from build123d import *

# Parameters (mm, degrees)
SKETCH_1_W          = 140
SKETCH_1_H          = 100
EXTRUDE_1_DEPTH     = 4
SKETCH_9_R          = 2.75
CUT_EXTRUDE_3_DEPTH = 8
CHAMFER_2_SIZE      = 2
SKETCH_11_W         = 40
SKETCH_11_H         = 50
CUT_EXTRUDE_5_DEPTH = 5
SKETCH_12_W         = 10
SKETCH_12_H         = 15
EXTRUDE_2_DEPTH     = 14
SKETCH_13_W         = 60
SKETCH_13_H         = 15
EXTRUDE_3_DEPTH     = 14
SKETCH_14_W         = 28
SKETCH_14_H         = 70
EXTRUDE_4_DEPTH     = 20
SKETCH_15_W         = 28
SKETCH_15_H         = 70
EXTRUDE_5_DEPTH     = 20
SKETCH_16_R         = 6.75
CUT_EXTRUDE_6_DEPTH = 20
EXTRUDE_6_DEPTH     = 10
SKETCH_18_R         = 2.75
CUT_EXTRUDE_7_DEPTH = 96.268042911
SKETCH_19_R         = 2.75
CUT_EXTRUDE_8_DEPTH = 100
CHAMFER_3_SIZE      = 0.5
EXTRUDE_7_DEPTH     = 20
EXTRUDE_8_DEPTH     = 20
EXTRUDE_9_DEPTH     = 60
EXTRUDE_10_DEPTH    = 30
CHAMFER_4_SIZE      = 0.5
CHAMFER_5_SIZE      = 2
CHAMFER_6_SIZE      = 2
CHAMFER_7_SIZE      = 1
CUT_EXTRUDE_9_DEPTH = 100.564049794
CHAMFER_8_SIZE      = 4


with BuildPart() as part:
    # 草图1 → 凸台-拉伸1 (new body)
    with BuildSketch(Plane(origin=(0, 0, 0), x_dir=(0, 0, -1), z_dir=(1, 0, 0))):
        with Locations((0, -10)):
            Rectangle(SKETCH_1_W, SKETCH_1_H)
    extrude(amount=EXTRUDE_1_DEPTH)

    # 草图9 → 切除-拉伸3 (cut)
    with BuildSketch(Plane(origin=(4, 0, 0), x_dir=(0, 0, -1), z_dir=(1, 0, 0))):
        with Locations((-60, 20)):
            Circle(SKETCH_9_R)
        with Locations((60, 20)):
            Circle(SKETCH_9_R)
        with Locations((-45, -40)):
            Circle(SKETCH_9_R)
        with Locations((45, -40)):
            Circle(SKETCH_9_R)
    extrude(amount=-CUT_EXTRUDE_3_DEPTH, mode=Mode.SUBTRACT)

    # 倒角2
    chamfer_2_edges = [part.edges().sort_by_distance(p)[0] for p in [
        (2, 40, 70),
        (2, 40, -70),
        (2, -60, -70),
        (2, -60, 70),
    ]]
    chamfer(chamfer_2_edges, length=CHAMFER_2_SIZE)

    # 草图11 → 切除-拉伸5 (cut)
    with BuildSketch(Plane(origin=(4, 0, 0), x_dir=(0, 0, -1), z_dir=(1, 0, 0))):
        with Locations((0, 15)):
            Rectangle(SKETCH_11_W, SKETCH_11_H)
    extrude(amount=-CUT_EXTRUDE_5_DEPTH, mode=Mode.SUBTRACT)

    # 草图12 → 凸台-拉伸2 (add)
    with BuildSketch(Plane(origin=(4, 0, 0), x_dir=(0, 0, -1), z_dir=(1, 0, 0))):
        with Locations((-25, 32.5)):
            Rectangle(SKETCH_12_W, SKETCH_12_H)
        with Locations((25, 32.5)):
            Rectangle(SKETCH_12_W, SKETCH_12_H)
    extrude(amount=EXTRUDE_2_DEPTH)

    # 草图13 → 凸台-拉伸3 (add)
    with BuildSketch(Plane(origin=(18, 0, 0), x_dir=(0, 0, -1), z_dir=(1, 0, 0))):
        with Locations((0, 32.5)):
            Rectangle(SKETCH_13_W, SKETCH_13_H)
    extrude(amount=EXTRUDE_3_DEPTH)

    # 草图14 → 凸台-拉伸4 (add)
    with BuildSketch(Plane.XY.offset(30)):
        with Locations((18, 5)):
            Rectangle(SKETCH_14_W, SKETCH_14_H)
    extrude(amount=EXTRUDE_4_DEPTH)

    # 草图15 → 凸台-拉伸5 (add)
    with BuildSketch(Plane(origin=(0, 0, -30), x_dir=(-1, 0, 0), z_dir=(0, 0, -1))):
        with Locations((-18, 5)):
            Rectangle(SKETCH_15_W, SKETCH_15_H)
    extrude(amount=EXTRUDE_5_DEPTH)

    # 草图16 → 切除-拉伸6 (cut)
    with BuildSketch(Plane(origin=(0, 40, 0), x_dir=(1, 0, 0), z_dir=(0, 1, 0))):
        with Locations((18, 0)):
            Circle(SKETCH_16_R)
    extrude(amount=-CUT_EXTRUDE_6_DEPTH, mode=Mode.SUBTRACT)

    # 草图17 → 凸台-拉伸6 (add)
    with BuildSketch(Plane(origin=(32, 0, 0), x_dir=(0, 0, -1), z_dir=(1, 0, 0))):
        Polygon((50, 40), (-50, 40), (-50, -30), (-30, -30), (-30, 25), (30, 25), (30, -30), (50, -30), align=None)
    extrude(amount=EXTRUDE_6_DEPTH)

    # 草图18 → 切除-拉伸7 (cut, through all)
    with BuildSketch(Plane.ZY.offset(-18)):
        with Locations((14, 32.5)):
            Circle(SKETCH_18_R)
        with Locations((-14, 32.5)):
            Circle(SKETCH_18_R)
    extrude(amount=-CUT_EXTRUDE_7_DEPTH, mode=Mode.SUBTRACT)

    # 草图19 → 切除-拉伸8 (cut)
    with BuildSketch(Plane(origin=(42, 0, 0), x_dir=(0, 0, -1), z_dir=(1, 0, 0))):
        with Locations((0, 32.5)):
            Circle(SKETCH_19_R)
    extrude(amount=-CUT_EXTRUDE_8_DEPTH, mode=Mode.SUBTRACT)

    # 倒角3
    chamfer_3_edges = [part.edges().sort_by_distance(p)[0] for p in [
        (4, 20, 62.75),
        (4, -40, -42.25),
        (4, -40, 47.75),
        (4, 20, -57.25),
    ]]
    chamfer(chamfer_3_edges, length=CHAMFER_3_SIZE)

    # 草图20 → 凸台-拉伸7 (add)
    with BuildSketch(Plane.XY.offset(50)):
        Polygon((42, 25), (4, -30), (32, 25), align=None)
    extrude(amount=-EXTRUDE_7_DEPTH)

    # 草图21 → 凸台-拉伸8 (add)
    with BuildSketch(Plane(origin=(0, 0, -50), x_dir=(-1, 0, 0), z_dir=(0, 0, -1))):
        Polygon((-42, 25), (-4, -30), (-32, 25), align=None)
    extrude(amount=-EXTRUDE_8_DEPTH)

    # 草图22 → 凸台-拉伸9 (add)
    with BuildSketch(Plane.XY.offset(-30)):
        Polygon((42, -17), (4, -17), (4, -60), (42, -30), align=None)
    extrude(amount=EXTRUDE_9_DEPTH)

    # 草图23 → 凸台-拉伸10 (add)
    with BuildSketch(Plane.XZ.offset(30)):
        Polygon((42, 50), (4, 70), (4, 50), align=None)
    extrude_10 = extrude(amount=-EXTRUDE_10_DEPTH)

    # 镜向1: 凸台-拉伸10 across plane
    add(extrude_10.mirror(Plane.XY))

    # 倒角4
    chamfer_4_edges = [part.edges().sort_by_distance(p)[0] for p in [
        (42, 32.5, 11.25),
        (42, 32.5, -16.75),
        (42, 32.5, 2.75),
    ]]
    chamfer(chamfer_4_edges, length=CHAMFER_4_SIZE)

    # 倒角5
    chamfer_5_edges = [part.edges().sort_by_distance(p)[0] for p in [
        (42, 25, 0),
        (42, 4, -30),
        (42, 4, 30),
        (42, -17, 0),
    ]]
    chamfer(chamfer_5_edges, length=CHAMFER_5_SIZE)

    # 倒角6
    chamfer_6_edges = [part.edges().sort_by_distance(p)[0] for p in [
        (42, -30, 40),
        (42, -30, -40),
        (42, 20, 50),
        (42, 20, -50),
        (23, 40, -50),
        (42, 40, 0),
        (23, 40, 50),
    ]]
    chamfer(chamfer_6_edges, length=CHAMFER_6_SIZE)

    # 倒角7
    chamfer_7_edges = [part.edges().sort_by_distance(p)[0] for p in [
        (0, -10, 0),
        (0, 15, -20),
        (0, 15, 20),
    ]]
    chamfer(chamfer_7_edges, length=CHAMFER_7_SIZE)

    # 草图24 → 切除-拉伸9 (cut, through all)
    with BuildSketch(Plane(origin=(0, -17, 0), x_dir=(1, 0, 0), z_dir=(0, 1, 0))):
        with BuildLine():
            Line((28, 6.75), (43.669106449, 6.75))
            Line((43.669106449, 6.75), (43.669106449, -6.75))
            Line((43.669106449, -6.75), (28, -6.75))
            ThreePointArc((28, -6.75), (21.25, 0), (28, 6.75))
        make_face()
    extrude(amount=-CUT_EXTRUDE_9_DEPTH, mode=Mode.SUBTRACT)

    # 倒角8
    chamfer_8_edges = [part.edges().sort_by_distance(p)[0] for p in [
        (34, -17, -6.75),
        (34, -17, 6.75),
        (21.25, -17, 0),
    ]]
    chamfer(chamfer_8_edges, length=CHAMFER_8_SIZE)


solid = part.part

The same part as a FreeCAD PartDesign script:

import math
import FreeCAD as App
import Part
import Sketcher
from FreeCAD import Vector
Q = App.Units.Quantity


def edges_at(feature, points):
    """Names of the edges that pass closest to the given points."""
    edges = feature.Shape.Edges
    near = lambda p: min(range(len(edges)), key=lambda i: edges[i].distToShape(Part.Vertex(*p))[0])
    return sorted({f"Edge{near(p) + 1}" for p in points})


def add_polygon(sketch, points):
    """Adds a closed chain of lines whose ends are joined by coincident constraints."""
    first, n = sketch.GeometryCount, len(points)
    for a, b in zip(points, points[1:] + points[:1]):
        sketch.addGeometry(Part.LineSegment(App.Vector(*a, 0), App.Vector(*b, 0)), False)
    for i in range(n):
        sketch.addConstraint(Sketcher.Constraint("Coincident", first + i, 2, first + (i + 1) % n, 1))

doc = App.newDocument("Part")
body = doc.addObject("PartDesign::Body", "Body")

# Sketch on YZ plane
sketch1 = doc.addObject("Sketcher::SketchObject", "Sketch")
body.addObject(sketch1)
sketch1.AttachmentSupport = (doc.YZ_Plane, [""])
sketch1.MapMode = "FlatFace"
add_polygon(sketch1, [(40, 70), (-60, 70), (-60, -70), (40, -70)])  # lines 0-3
sketch1.addConstraint([
    Sketcher.Constraint("Horizontal", 0),
    Sketcher.Constraint("Vertical", 1),
    Sketcher.Constraint("Horizontal", 2),
    Sketcher.Constraint("Vertical", 3),
    Sketcher.Constraint("DistanceX", 0, 2, 0, 1, Q("100 mm")),
    Sketcher.Constraint("DistanceY", 1, 2, 1, 1, Q("140 mm")),
    Sketcher.Constraint("DistanceX", 0, 2, -1, 1, Q("60 mm")),
    Sketcher.Constraint("DistanceY", -1, 1, 0, 2, Q("70 mm")),
])
pad1 = doc.addObject("PartDesign::Pad", "Pad")
body.addObject(pad1)
pad1.Profile = sketch1
pad1.Length = 4

# Sketch on YZ plane
sketch2 = doc.addObject("Sketcher::SketchObject", "Sketch001")
body.addObject(sketch2)
sketch2.AttachmentSupport = (doc.YZ_Plane, [""])
sketch2.MapMode = "FlatFace"
sketch2.AttachmentOffset = App.Placement(Vector(0, 0, 4), App.Rotation())
sketch2.addGeometry([
    Part.Circle(Vector(20, 60, 0), Vector(0, 0, 1), 2.8),
    Part.Circle(Vector(20, -60, 0), Vector(0, 0, 1), 2.8),
    Part.Circle(Vector(-40, 45, 0), Vector(0, 0, 1), 2.8),
    Part.Circle(Vector(-40, -45, 0), Vector(0, 0, 1), 2.8),
], False)
sketch2.addConstraint([
    Sketcher.Constraint("Equal", 0, 1),
    Sketcher.Constraint("Equal", 1, 2),
    Sketcher.Constraint("Equal", 2, 3),
    Sketcher.Constraint("Symmetric", 0, 3, 1, 3, -1),
    Sketcher.Constraint("Symmetric", 2, 3, 3, 3, -1),
    Sketcher.Constraint("Diameter", 0, Q("5.5 mm")),
    Sketcher.Constraint("DistanceX", -1, 1, 0, 3, Q("20 mm")),
    Sketcher.Constraint("DistanceY", -1, 1, 0, 3, Q("60 mm")),
    Sketcher.Constraint("DistanceX", 2, 3, -1, 1, Q("40 mm")),
    Sketcher.Constraint("DistanceY", -1, 1, 2, 3, Q("45 mm")),
])
pocket1 = doc.addObject("PartDesign::Pocket", "Pocket")
body.addObject(pocket1)
pocket1.Profile = sketch2
pocket1.Length = 8
doc.recompute()

chamfer = doc.addObject("PartDesign::Chamfer", "Chamfer")
body.addObject(chamfer)
chamfer.Base = (pocket1, edges_at(pocket1, [
    (2, 40, 70),
    (2, 40, -70),
    (2, -60, -70),
    (2, -60, 70),
]))
chamfer.Size = 2

# Sketch on YZ plane
sketch3 = doc.addObject("Sketcher::SketchObject", "Sketch002")
body.addObject(sketch3)
sketch3.AttachmentSupport = (doc.YZ_Plane, [""])
sketch3.MapMode = "FlatFace"
sketch3.AttachmentOffset = App.Placement(Vector(0, 0, 4), App.Rotation())
add_polygon(sketch3, [(40, 20), (-10, 20), (-10, -20), (40, -20)])  # lines 0-3
sketch3.addConstraint([
    Sketcher.Constraint("Horizontal", 0),
    Sketcher.Constraint("Vertical", 1),
    Sketcher.Constraint("Horizontal", 2),
    Sketcher.Constraint("Vertical", 3),
    Sketcher.Constraint("DistanceX", 0, 2, 0, 1, Q("50 mm")),
    Sketcher.Constraint("DistanceY", 1, 2, 1, 1, Q("40 mm")),
    Sketcher.Constraint("DistanceX", 0, 2, -1, 1, Q("10 mm")),
    Sketcher.Constraint("DistanceY", -1, 1, 0, 2, Q("20 mm")),
])
pocket2 = doc.addObject("PartDesign::Pocket", "Pocket001")
body.addObject(pocket2)
pocket2.Profile = sketch3
pocket2.Length = 5

# Sketch on YZ plane
sketch4 = doc.addObject("Sketcher::SketchObject", "Sketch003")
body.addObject(sketch4)
sketch4.AttachmentSupport = (doc.YZ_Plane, [""])
sketch4.MapMode = "FlatFace"
sketch4.AttachmentOffset = App.Placement(Vector(0, 0, 4), App.Rotation())
add_polygon(sketch4, [(40, 30), (25, 30), (25, 20), (40, 20)])  # lines 0-3
add_polygon(sketch4, [(40, -20), (25, -20), (25, -30), (40, -30)])  # lines 4-7
sketch4.addConstraint([
    Sketcher.Constraint("Horizontal", 0),
    Sketcher.Constraint("Vertical", 1),
    Sketcher.Constraint("Horizontal", 2),
    Sketcher.Constraint("Vertical", 3),
    Sketcher.Constraint("Horizontal", 4),
    Sketcher.Constraint("Vertical", 5),
    Sketcher.Constraint("Horizontal", 6),
    Sketcher.Constraint("Vertical", 7),
    Sketcher.Constraint("Symmetric", 1, 2, 4, 2, -1),
    Sketcher.Constraint("Symmetric", 3, 2, 6, 2, -1),
    Sketcher.Constraint("DistanceX", 0, 2, 0, 1, Q("15 mm")),
    Sketcher.Constraint("DistanceY", 1, 2, 1, 1, Q("10 mm")),
    Sketcher.Constraint("DistanceX", -1, 1, 0, 2, Q("25 mm")),
    Sketcher.Constraint("DistanceY", -1, 1, 0, 2, Q("30 mm")),
])
pad2 = doc.addObject("PartDesign::Pad", "Pad001")
body.addObject(pad2)
pad2.Profile = sketch4
pad2.Length = 14

# Sketch on YZ plane
sketch5 = doc.addObject("Sketcher::SketchObject", "Sketch004")
body.addObject(sketch5)
sketch5.AttachmentSupport = (doc.YZ_Plane, [""])
sketch5.MapMode = "FlatFace"
sketch5.AttachmentOffset = App.Placement(Vector(0, 0, 18), App.Rotation())
add_polygon(sketch5, [(40, 30), (25, 30), (25, -30), (40, -30)])  # lines 0-3
sketch5.addConstraint([
    Sketcher.Constraint("Horizontal", 0),
    Sketcher.Constraint("Vertical", 1),
    Sketcher.Constraint("Horizontal", 2),
    Sketcher.Constraint("Vertical", 3),
    Sketcher.Constraint("DistanceX", 0, 2, 0, 1, Q("15 mm")),
    Sketcher.Constraint("DistanceY", 1, 2, 1, 1, Q("60 mm")),
    Sketcher.Constraint("DistanceX", -1, 1, 0, 2, Q("25 mm")),
    Sketcher.Constraint("DistanceY", -1, 1, 0, 2, Q("30 mm")),
])
pad3 = doc.addObject("PartDesign::Pad", "Pad002")
body.addObject(pad3)
pad3.Profile = sketch5
pad3.Length = 14

# Sketch on XY plane
sketch6 = doc.addObject("Sketcher::SketchObject", "Sketch005")
body.addObject(sketch6)
sketch6.AttachmentSupport = (doc.XY_Plane, [""])
sketch6.MapMode = "FlatFace"
sketch6.AttachmentOffset = App.Placement(Vector(0, 0, 30), App.Rotation())
add_polygon(sketch6, [(4, 40), (4, -30), (32, -30), (32, 40)])  # lines 0-3
sketch6.addConstraint([
    Sketcher.Constraint("Vertical", 0),
    Sketcher.Constraint("Horizontal", 1),
    Sketcher.Constraint("Vertical", 2),
    Sketcher.Constraint("Horizontal", 3),
    Sketcher.Constraint("DistanceX", 1, 1, 1, 2, Q("28 mm")),
    Sketcher.Constraint("DistanceY", 0, 2, 0, 1, Q("70 mm")),
    Sketcher.Constraint("DistanceX", -1, 1, 0, 2, Q("4 mm")),
    Sketcher.Constraint("DistanceY", 0, 2, -1, 1, Q("30 mm")),
])
pad4 = doc.addObject("PartDesign::Pad", "Pad003")
body.addObject(pad4)
pad4.Profile = sketch6
pad4.Length = 20

# Sketch on XY plane
sketch7 = doc.addObject("Sketcher::SketchObject", "Sketch006")
body.addObject(sketch7)
sketch7.AttachmentSupport = (doc.XY_Plane, [""])
sketch7.MapMode = "FlatFace"
sketch7.AttachmentOffset = App.Placement(Vector(0, 0, -30), App.Rotation())
add_polygon(sketch7, [(32, 40), (32, -30), (4, -30), (4, 40)])  # lines 0-3
sketch7.addConstraint([
    Sketcher.Constraint("Vertical", 0),
    Sketcher.Constraint("Horizontal", 1),
    Sketcher.Constraint("Vertical", 2),
    Sketcher.Constraint("Horizontal", 3),
    Sketcher.Constraint("DistanceX", 1, 2, 1, 1, Q("28 mm")),
    Sketcher.Constraint("DistanceY", 0, 2, 0, 1, Q("70 mm")),
    Sketcher.Constraint("DistanceX", -1, 1, 0, 2, Q("32 mm")),
    Sketcher.Constraint("DistanceY", 0, 2, -1, 1, Q("30 mm")),
])
pad5 = doc.addObject("PartDesign::Pad", "Pad004")
body.addObject(pad5)
pad5.Profile = sketch7
pad5.Length = 20
pad5.Reversed = True

# Sketch on XZ plane
sketch8 = doc.addObject("Sketcher::SketchObject", "Sketch007")
body.addObject(sketch8)
sketch8.AttachmentSupport = (doc.XZ_Plane, [""])
sketch8.MapMode = "FlatFace"
sketch8.AttachmentOffset = App.Placement(Vector(0, 0, -40), App.Rotation())
sketch8.addGeometry(Part.Circle(Vector(18, 0, 0), Vector(0, 0, 1), 7), False)
sketch8.addConstraint([
    Sketcher.Constraint("PointOnObject", 0, 3, -1),
    Sketcher.Constraint("Diameter", 0, Q("13.5 mm")),
    Sketcher.Constraint("DistanceX", -1, 1, 0, 3, Q("18 mm")),
])
pocket3 = doc.addObject("PartDesign::Pocket", "Pocket002")
body.addObject(pocket3)
pocket3.Profile = sketch8
pocket3.Length = 20
pocket3.Reversed = True

# Sketch on YZ plane
sketch9 = doc.addObject("Sketcher::SketchObject", "Sketch008")
body.addObject(sketch9)
sketch9.AttachmentSupport = (doc.YZ_Plane, [""])
sketch9.MapMode = "FlatFace"
sketch9.AttachmentOffset = App.Placement(Vector(0, 0, 32), App.Rotation())
add_polygon(sketch9, [(40, -50), (40, 50), (-30, 50), (-30, 30), (25, 30), (25, -30), (-30, -30), (-30, -50)])  # lines 0-7
sketch9.addConstraint([
    Sketcher.Constraint("Vertical", 0),
    Sketcher.Constraint("Horizontal", 1),
    Sketcher.Constraint("Vertical", 2),
    Sketcher.Constraint("Horizontal", 3),
    Sketcher.Constraint("Vertical", 4),
    Sketcher.Constraint("Horizontal", 5),
    Sketcher.Constraint("Vertical", 6),
    Sketcher.Constraint("Horizontal", 7),
    Sketcher.Constraint("Symmetric", 2, 2, 5, 2, -1),
    Sketcher.Constraint("Equal", 2, 6),
    Sketcher.Constraint("DistanceX", 1, 2, 1, 1, Q("70 mm")),
    Sketcher.Constraint("DistanceX", 3, 1, 3, 2, Q("55 mm")),
    Sketcher.Constraint("DistanceY", 0, 1, 0, 2, Q("100 mm")),
    Sketcher.Constraint("DistanceY", 2, 2, 2, 1, Q("20 mm")),
    Sketcher.Constraint("DistanceX", -1, 1, 0, 2, Q("40 mm")),
])
pad6 = doc.addObject("PartDesign::Pad", "Pad005")
body.addObject(pad6)
pad6.Profile = sketch9
pad6.Length = 10

# Sketch on YZ plane
sketch10 = doc.addObject("Sketcher::SketchObject", "Sketch009")
body.addObject(sketch10)
sketch10.AttachmentSupport = (doc.YZ_Plane, [""])
sketch10.MapMode = "FlatFace"
sketch10.AttachmentOffset = App.Placement(Vector(0, 0, 18), App.Rotation())
sketch10.addGeometry([
    Part.Circle(Vector(32.5, 14, 0), Vector(0, 0, 1), 2.8),
    Part.Circle(Vector(32.5, -14, 0), Vector(0, 0, 1), 2.8),
], False)
sketch10.addConstraint([
    Sketcher.Constraint("Equal", 0, 1),
    Sketcher.Constraint("Symmetric", 0, 3, 1, 3, -1),
    Sketcher.Constraint("Diameter", 0, Q("5.5 mm")),
    Sketcher.Constraint("DistanceY", -1, 1, 0, 3, Q("14 mm")),
    Sketcher.Constraint("DistanceX", -1, 1, 0, 3, Q("32.5 mm")),
])
pocket4 = doc.addObject("PartDesign::Pocket", "Pocket003")
body.addObject(pocket4)
pocket4.Profile = sketch10
pocket4.Type = "ThroughAll"
pocket4.Reversed = True

# Sketch on YZ plane
sketch11 = doc.addObject("Sketcher::SketchObject", "Sketch010")
body.addObject(sketch11)
sketch11.AttachmentSupport = (doc.YZ_Plane, [""])
sketch11.MapMode = "FlatFace"
sketch11.AttachmentOffset = App.Placement(Vector(0, 0, 42), App.Rotation())
sketch11.addGeometry(Part.Circle(Vector(32.5, 0, 0), Vector(0, 0, 1), 2.8), False)
sketch11.addConstraint([
    Sketcher.Constraint("PointOnObject", 0, 3, -1),
    Sketcher.Constraint("Diameter", 0, Q("5.5 mm")),
    Sketcher.Constraint("DistanceX", -1, 1, 0, 3, Q("32.5 mm")),
])
pocket5 = doc.addObject("PartDesign::Pocket", "Pocket004")
body.addObject(pocket5)
pocket5.Profile = sketch11
pocket5.Length = 100
doc.recompute()

chamfer2 = doc.addObject("PartDesign::Chamfer", "Chamfer001")
body.addObject(chamfer2)
chamfer2.Base = (pocket5, edges_at(pocket5, [
    (4, 20, 62.75),
    (4, -40, -42.25),
    (4, -40, 47.75),
    (4, 20, -57.25),
]))
chamfer2.Size = 0.5

# Sketch on XY plane
sketch12 = doc.addObject("Sketcher::SketchObject", "Sketch011")
body.addObject(sketch12)
sketch12.AttachmentSupport = (doc.XY_Plane, [""])
sketch12.MapMode = "FlatFace"
sketch12.AttachmentOffset = App.Placement(Vector(0, 0, 50), App.Rotation())
add_polygon(sketch12, [(4, -30), (42, 25), (32, 25)])  # lines 0-2
sketch12.addConstraint([
    Sketcher.Constraint("Horizontal", 1),
    Sketcher.Constraint("DistanceX", 1, 2, 1, 1, Q("10 mm")),
    Sketcher.Constraint("DistanceX", -1, 1, 0, 2, Q("42 mm")),
    Sketcher.Constraint("DistanceY", -1, 1, 0, 2, Q("25 mm")),
    Sketcher.Constraint("DistanceX", -1, 1, 2, 2, Q("4 mm")),
    Sketcher.Constraint("DistanceY", 2, 2, -1, 1, Q("30 mm")),
])
pad7 = doc.addObject("PartDesign::Pad", "Pad006")
body.addObject(pad7)
pad7.Profile = sketch12
pad7.Length = 20
pad7.Reversed = True

# Sketch on XY plane
sketch13 = doc.addObject("Sketcher::SketchObject", "Sketch012")
body.addObject(sketch13)
sketch13.AttachmentSupport = (doc.XY_Plane, [""])
sketch13.MapMode = "FlatFace"
sketch13.AttachmentOffset = App.Placement(Vector(0, 0, -50), App.Rotation())
add_polygon(sketch13, [(42, 25), (4, -30), (32, 25)])  # lines 0-2
sketch13.addConstraint([
    Sketcher.Constraint("Horizontal", 2),
    Sketcher.Constraint("DistanceX", 2, 1, 2, 2, Q("10 mm")),
    Sketcher.Constraint("DistanceX", -1, 1, 0, 2, Q("4 mm")),
    Sketcher.Constraint("DistanceY", 0, 2, -1, 1, Q("30 mm")),
    Sketcher.Constraint("DistanceX", -1, 1, 1, 2, Q("32 mm")),
    Sketcher.Constraint("DistanceY", -1, 1, 1, 2, Q("25 mm")),
])
pad8 = doc.addObject("PartDesign::Pad", "Pad007")
body.addObject(pad8)
pad8.Profile = sketch13
pad8.Length = 20

# Sketch on XY plane
sketch14 = doc.addObject("Sketcher::SketchObject", "Sketch013")
body.addObject(sketch14)
sketch14.AttachmentSupport = (doc.XY_Plane, [""])
sketch14.MapMode = "FlatFace"
sketch14.AttachmentOffset = App.Placement(Vector(0, 0, -30), App.Rotation())
add_polygon(sketch14, [(42, -17), (4, -17), (4, -60), (42, -30)])  # lines 0-3
sketch14.addConstraint([
    Sketcher.Constraint("Horizontal", 0),
    Sketcher.Constraint("Vertical", 1),
    Sketcher.Constraint("Vertical", 3),
    Sketcher.Constraint("DistanceX", 0, 2, 0, 1, Q("38 mm")),
    Sketcher.Constraint("DistanceY", 1, 2, 1, 1, Q("43 mm")),
    Sketcher.Constraint("DistanceY", 3, 1, 3, 2, Q("13 mm")),
    Sketcher.Constraint("DistanceX", -1, 1, 0, 2, Q("4 mm")),
    Sketcher.Constraint("DistanceY", 0, 2, -1, 1, Q("17 mm")),
])
pad9 = doc.addObject("PartDesign::Pad", "Pad008")
body.addObject(pad9)
pad9.Profile = sketch14
pad9.Length = 60

# Sketch on XZ plane
sketch15 = doc.addObject("Sketcher::SketchObject", "Sketch014")
body.addObject(sketch15)
sketch15.AttachmentSupport = (doc.XZ_Plane, [""])
sketch15.MapMode = "FlatFace"
sketch15.AttachmentOffset = App.Placement(Vector(0, 0, 30), App.Rotation())
add_polygon(sketch15, [(42, 50), (4, 70), (4, 50)])  # lines 0-2
sketch15.addConstraint([
    Sketcher.Constraint("Vertical", 1),
    Sketcher.Constraint("Horizontal", 2),
    Sketcher.Constraint("DistanceX", 2, 1, 2, 2, Q("38 mm")),
    Sketcher.Constraint("DistanceY", 1, 2, 1, 1, Q("20 mm")),
    Sketcher.Constraint("DistanceX", -1, 1, 0, 2, Q("4 mm")),
    Sketcher.Constraint("DistanceY", -1, 1, 0, 2, Q("70 mm")),
])
pad10 = doc.addObject("PartDesign::Pad", "Pad009")
body.addObject(pad10)
pad10.Profile = sketch15
pad10.Length = 30
pad10.Reversed = True
doc.recompute()

mirrored = doc.addObject("PartDesign::Mirrored", "Mirrored")
body.addObject(mirrored)
mirrored.Originals = [pad10]
mirrored.MirrorPlane = (doc.XY_Plane, [""])
body.Tip = mirrored
doc.recompute()

chamfer3 = doc.addObject("PartDesign::Chamfer", "Chamfer002")
body.addObject(chamfer3)
chamfer3.Base = (mirrored, edges_at(mirrored, [(42, 32.5, 11.25), (42, 32.5, -16.75), (42, 32.5, 2.75)]))
chamfer3.Size = 0.5
doc.recompute()

chamfer4 = doc.addObject("PartDesign::Chamfer", "Chamfer003")
body.addObject(chamfer4)
chamfer4.Base = (chamfer3, edges_at(chamfer3, [
    (42, 25, 0),
    (42, 4, -30),
    (42, 4, 30),
    (42, -17, 0),
]))
chamfer4.Size = 2
doc.recompute()

chamfer5 = doc.addObject("PartDesign::Chamfer", "Chamfer004")
body.addObject(chamfer5)
chamfer5.Base = (chamfer4, edges_at(chamfer4, [
    (42, -30, 40),
    (42, -30, -40),
    (42, 20, 50),
    (42, 20, -50),
    (23, 40, -50),
    (42, 40, 0),
    (23, 40, 50),
]))
chamfer5.Size = 2
doc.recompute()

chamfer6 = doc.addObject("PartDesign::Chamfer", "Chamfer005")
body.addObject(chamfer6)
chamfer6.Base = (chamfer5, edges_at(chamfer5, [(0, -10, 0), (0, 15, -20), (0, 15, 20)]))
chamfer6.Size = 1

# Sketch on XZ plane
sketch16 = doc.addObject("Sketcher::SketchObject", "Sketch015")
body.addObject(sketch16)
sketch16.AttachmentSupport = (doc.XZ_Plane, [""])
sketch16.MapMode = "FlatFace"
sketch16.AttachmentOffset = App.Placement(Vector(0, 0, 17), App.Rotation())
sketch16.addGeometry([
    Part.LineSegment(Vector(44, -7, 0), Vector(28, -7, 0)),
    Part.ArcOfCircle(Part.Circle(Vector(28, 0, 0), Vector(0, 0, 1), 7), math.radians(90), math.radians(270)),
    Part.LineSegment(Vector(28, 7, 0), Vector(44, 7, 0)),
    Part.LineSegment(Vector(44, 7, 0), Vector(44, -7, 0)),
], False)
sketch16.addConstraint([
    Sketcher.Constraint("Tangent", 0, 2, 1, 2),
    Sketcher.Constraint("Tangent", 1, 1, 2, 1),
    Sketcher.Constraint("Coincident", 2, 2, 3, 1),
    Sketcher.Constraint("Coincident", 3, 2, 0, 1),
    Sketcher.Constraint("Horizontal", 0),
    Sketcher.Constraint("Horizontal", 2),
    Sketcher.Constraint("Vertical", 3),
    Sketcher.Constraint("PointOnObject", 1, 3, -1),
    Sketcher.Constraint("Radius", 1, Q("6.75 mm")),
    Sketcher.Constraint("DistanceX", -1, 1, 1, 3, Q("28 mm")),
    Sketcher.Constraint("DistanceX", 0, 2, 0, 1, Q("15.669106 mm")),
])
pocket6 = doc.addObject("PartDesign::Pocket", "Pocket005")
body.addObject(pocket6)
pocket6.Profile = sketch16
pocket6.Type = "ThroughAll"
pocket6.Reversed = True
doc.recompute()

chamfer7 = doc.addObject("PartDesign::Chamfer", "Chamfer006")
body.addObject(chamfer7)
chamfer7.Base = (pocket6, edges_at(pocket6, [(34, -17, -6.75), (34, -17, 6.75), (21.25, -17, 0)]))
chamfer7.Size = 4

doc.recompute()
